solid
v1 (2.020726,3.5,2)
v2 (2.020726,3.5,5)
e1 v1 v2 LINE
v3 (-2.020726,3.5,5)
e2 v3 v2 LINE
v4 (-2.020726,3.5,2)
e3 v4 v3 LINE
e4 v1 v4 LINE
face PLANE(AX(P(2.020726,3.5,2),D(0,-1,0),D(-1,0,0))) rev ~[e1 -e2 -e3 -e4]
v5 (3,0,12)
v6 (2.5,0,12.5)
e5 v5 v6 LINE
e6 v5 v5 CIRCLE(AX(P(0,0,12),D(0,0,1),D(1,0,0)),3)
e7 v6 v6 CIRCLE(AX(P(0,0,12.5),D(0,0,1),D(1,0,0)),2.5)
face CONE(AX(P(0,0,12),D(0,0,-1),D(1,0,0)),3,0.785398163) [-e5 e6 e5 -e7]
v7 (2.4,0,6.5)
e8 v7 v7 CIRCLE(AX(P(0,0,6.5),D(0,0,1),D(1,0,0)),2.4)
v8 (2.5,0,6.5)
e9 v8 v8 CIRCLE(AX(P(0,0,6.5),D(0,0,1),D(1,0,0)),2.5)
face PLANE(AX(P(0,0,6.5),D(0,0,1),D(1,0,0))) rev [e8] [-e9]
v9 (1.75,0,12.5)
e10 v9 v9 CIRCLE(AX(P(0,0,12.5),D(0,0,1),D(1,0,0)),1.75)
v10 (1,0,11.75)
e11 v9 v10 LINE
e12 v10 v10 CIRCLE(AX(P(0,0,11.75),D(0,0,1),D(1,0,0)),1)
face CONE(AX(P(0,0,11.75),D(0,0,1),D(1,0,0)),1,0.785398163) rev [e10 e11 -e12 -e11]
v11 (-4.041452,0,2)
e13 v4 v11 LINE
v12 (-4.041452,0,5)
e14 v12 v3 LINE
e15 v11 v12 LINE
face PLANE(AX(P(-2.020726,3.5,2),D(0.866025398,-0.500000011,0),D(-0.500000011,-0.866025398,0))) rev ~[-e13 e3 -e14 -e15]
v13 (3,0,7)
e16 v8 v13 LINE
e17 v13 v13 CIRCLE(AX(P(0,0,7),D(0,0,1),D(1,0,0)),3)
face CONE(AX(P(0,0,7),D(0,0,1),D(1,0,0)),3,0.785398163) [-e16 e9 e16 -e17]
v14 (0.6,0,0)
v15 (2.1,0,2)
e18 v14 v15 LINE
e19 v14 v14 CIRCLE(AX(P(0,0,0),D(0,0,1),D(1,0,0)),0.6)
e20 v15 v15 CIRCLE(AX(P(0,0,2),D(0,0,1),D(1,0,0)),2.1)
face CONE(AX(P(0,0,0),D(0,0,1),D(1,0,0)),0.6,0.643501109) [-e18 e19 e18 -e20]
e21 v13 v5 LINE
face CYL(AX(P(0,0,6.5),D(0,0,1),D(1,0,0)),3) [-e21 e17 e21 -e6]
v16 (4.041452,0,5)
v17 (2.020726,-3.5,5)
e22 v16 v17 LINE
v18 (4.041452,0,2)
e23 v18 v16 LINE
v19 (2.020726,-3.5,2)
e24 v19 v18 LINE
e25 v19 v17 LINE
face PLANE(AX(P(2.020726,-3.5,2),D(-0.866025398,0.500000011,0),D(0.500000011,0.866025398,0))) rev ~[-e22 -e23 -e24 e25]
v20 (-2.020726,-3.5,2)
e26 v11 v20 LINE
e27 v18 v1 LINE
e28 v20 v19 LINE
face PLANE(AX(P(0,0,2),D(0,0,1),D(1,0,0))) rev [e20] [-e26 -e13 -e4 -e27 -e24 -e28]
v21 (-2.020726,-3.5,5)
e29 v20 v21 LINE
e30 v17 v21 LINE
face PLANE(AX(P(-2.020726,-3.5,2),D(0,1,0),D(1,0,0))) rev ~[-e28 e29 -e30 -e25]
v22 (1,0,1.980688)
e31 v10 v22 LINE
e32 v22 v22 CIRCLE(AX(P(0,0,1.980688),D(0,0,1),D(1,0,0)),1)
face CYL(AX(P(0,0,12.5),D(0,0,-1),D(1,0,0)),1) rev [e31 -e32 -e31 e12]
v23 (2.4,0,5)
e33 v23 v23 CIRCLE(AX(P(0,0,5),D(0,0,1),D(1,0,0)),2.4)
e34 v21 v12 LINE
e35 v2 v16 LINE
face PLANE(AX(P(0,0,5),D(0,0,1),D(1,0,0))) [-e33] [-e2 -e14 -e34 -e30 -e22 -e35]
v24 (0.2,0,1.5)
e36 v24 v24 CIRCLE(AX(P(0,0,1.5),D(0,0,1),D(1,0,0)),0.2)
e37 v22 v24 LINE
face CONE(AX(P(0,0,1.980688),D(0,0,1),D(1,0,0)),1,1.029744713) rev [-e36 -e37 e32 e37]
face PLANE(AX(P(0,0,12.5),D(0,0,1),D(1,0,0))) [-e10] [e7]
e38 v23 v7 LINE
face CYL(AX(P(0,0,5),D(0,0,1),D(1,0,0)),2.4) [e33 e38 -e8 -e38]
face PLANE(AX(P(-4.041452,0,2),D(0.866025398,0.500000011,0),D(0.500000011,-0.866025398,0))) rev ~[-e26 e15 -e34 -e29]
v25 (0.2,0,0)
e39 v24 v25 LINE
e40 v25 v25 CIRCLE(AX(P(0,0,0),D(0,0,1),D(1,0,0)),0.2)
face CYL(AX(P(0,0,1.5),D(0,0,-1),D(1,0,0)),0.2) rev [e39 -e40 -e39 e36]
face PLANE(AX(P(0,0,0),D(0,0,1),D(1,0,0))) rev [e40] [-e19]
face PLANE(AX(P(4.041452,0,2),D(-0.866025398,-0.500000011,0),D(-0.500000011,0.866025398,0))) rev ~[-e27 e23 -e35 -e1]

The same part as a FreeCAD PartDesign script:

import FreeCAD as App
import Part
import Sketcher
Q = App.Units.Quantity


def edges_at(feature, points):
    """Names of the edges that pass closest to the given points."""
    edges = feature.Shape.Edges
    near = lambda p: min(range(len(edges)), key=lambda i: edges[i].distToShape(Part.Vertex(*p))[0])
    return sorted({f"Edge{near(p) + 1}" for p in points})


def add_polygon(sketch, points):
    """Adds a closed chain of lines whose ends are joined by coincident constraints."""
    first, n = sketch.GeometryCount, len(points)
    for a, b in zip(points, points[1:] + points[:1]):
        sketch.addGeometry(Part.LineSegment(App.Vector(*a, 0), App.Vector(*b, 0)), False)
    for i in range(n):
        sketch.addConstraint(Sketcher.Constraint("Coincident", first + i, 2, first + (i + 1) % n, 1))

doc = App.newDocument("Part")
params = doc.addObject("Spreadsheet::Sheet", "Params")
for row, (alias, value) in enumerate([
    ("sketch1_width", "2 mm"),
    ("sketch1_height", "3 mm"),
    ("sketch1_height2", "6 mm"),
    ("sketch1_width2", "0.4 mm"),
    ("sketch1_width3", "2.1 mm"),
    ("revolution_angle", "360 deg"),
    ("chamfer_size", "0.5 mm"),
    ("chamfer2_size", "0.75 mm"),
    ("sketch2_diameter", "10 mm"),
], start=1):
    params.set(f"A{row}", alias)
    params.set(f"B{row}", "=" + value)
    params.setAlias(f"B{row}", alias)

body = doc.addObject("PartDesign::Body", "Body")

sketch1 = body.newObject("Sketcher::SketchObject", "Sketch")
sketch1.AttachmentSupport = (doc.getObject("XZ_Plane"), [""])
sketch1.MapMode = "FlatFace"
add_polygon(sketch1, [(0.2, 1.5), (0.2, 0), (0.6, 0), (2.1, 2), (4.2, 2), (4.2, 5), (2.4, 5), (2.4, 6.5), (3, 6.5), (3, 12.5), (1, 12.5), (1, 1.980688)])
sketch1.addConstraint(Sketcher.Constraint("Vertical", 0))
sketch1.addConstraint(Sketcher.Constraint("Horizontal", 1))
sketch1.addConstraint(Sketcher.Constraint("Horizontal", 3))
sketch1.addConstraint(Sketcher.Constraint("Vertical", 4))
sketch1.addConstraint(Sketcher.Constraint("Horizontal", 5))
sketch1.addConstraint(Sketcher.Constraint("Vertical", 6))
sketch1.addConstraint(Sketcher.Constraint("Horizontal", 7))
sketch1.addConstraint(Sketcher.Constraint("Vertical", 8))
sketch1.addConstraint(Sketcher.Constraint("Horizontal", 9))
sketch1.addConstraint(Sketcher.Constraint("Vertical", 10))
sketch1.addConstraint(Sketcher.Constraint("PointOnObject", 0, 2, -1))
sketch1.addConstraint(Sketcher.Constraint("Equal", 0, 6))
sketch1.addConstraint(Sketcher.Constraint("DistanceX", 9, 2, 9, 1, Q("2 mm")))
sketch1.addConstraint(Sketcher.Constraint("DistanceY", 4, 1, 4, 2, Q("3 mm")))
sketch1.addConstraint(Sketcher.Constraint("DistanceY", 8, 1, 8, 2, Q("6 mm")))
sketch1.addConstraint(Sketcher.Constraint("DistanceX", 1, 1, 1, 2, Q("0.4 mm")))
sketch1.addConstraint(Sketcher.Constraint("DistanceX", 3, 1, 3, 2, Q("2.1 mm")))
sketch1.addConstraint(Sketcher.Constraint("DistanceX", 5, 2, 5, 1, Q("1.8 mm")))
sketch1.addConstraint(Sketcher.Constraint("DistanceX", 7, 1, 7, 2, Q("0.6 mm")))
sketch1.addConstraint(Sketcher.Constraint("DistanceY", 0, 2, 0, 1, Q("1.5 mm")))
sketch1.addConstraint(Sketcher.Constraint("DistanceY", -1, 1, 2, 2, Q("2 mm")))
sketch1.addConstraint(Sketcher.Constraint("DistanceX", -1, 1, 7, 2, Q("3 mm")))
sketch1.addConstraint(Sketcher.Constraint("DistanceX", 0, 2, 3, 2, Q("4 mm")))
sketch1.addConstraint(Sketcher.Constraint("DistanceY", 10, 2, 10, 1, Q("10.519312 mm")))
sketch1.setExpression("Constraints[24]", "Params.sketch1_width")
sketch1.setExpression("Constraints[25]", "Params.sketch1_height")
sketch1.setExpression("Constraints[26]", "Params.sketch1_height2")
sketch1.setExpression("Constraints[27]", "Params.sketch1_width2")
sketch1.setExpression("Constraints[28]", "Params.sketch1_width3")
revolution = body.newObject("PartDesign::Revolution", "Revolution")
revolution.Profile = sketch1
revolution.ReferenceAxis = (sketch1, ["V_Axis"])
revolution.setExpression("Angle", "Params.revolution_angle")
doc.recompute()

chamfer = body.newObject("PartDesign::Chamfer", "Chamfer")
chamfer.Base = (revolution, edges_at(revolution, [(-3, 0, 6.5), (-3, 0, 12.5)]))
chamfer.setExpression("Size", "Params.chamfer_size")
doc.recompute()

chamfer2 = body.newObject("PartDesign::Chamfer", "Chamfer001")
chamfer2.Base = (chamfer, edges_at(chamfer, [(-1, 0, 12.5)]))
chamfer2.setExpression("Size", "Params.chamfer2_size")

sketch2 = body.newObject("Sketcher::SketchObject", "Sketch001")
sketch2.AttachmentSupport = (doc.getObject("XY_Plane"), [""])
sketch2.MapMode = "FlatFace"
sketch2.AttachmentOffset = App.Placement(App.Vector(0, 0, 2), App.Rotation())
sketch2.addGeometry(Part.Circle(App.Vector(0, 0, 0), App.Vector(0, 0, 1), 5), False)
add_polygon(sketch2, [(4.041452, 0), (2.020726, 3.5), (-2.020726, 3.5), (-4.041452, 0), (-2.020726, -3.5), (2.020726, -3.5)])
sketch2.addConstraint(Sketcher.Constraint("Horizontal", 2))
sketch2.addConstraint(Sketcher.Constraint("Horizontal", 5))
sketch2.addConstraint(Sketcher.Constraint("Coincident", 0, 3, -1, 1))
sketch2.addConstraint(Sketcher.Constraint("Symmetric", 1, 2, 4, 2, -1, 1))
sketch2.addConstraint(Sketcher.Constraint("Symmetric", 3, 2, 6, 2, -1, 1))
sketch2.addConstraint(Sketcher.Constraint("PointOnObject", 3, 2, -1))
sketch2.addConstraint(Sketcher.Constraint("Parallel", 3, 6))
sketch2.addConstraint(Sketcher.Constraint("Vertical", 2, 2, 4, 2))
sketch2.addConstraint(Sketcher.Constraint("Diameter", 0, Q("10 mm")))
sketch2.addConstraint(Sketcher.Constraint("Angle", 1, Q("120.000001 deg")))
sketch2.addConstraint(Sketcher.Constraint("DistanceY", 4, 2, 2, 2, Q("7 mm")))
sketch2.addConstraint(Sketcher.Constraint("DistanceX", 2, 2, 2, 1, Q("4.041452 mm")))
sketch2.setExpression("Constraints[14]", "Params.sketch2_diameter")
pocket1 = body.newObject("PartDesign::Pocket", "Pocket")
pocket1.Profile = sketch2
pocket1.Type = "ThroughAll"
pocket1.Reversed = True

doc.recompute()
